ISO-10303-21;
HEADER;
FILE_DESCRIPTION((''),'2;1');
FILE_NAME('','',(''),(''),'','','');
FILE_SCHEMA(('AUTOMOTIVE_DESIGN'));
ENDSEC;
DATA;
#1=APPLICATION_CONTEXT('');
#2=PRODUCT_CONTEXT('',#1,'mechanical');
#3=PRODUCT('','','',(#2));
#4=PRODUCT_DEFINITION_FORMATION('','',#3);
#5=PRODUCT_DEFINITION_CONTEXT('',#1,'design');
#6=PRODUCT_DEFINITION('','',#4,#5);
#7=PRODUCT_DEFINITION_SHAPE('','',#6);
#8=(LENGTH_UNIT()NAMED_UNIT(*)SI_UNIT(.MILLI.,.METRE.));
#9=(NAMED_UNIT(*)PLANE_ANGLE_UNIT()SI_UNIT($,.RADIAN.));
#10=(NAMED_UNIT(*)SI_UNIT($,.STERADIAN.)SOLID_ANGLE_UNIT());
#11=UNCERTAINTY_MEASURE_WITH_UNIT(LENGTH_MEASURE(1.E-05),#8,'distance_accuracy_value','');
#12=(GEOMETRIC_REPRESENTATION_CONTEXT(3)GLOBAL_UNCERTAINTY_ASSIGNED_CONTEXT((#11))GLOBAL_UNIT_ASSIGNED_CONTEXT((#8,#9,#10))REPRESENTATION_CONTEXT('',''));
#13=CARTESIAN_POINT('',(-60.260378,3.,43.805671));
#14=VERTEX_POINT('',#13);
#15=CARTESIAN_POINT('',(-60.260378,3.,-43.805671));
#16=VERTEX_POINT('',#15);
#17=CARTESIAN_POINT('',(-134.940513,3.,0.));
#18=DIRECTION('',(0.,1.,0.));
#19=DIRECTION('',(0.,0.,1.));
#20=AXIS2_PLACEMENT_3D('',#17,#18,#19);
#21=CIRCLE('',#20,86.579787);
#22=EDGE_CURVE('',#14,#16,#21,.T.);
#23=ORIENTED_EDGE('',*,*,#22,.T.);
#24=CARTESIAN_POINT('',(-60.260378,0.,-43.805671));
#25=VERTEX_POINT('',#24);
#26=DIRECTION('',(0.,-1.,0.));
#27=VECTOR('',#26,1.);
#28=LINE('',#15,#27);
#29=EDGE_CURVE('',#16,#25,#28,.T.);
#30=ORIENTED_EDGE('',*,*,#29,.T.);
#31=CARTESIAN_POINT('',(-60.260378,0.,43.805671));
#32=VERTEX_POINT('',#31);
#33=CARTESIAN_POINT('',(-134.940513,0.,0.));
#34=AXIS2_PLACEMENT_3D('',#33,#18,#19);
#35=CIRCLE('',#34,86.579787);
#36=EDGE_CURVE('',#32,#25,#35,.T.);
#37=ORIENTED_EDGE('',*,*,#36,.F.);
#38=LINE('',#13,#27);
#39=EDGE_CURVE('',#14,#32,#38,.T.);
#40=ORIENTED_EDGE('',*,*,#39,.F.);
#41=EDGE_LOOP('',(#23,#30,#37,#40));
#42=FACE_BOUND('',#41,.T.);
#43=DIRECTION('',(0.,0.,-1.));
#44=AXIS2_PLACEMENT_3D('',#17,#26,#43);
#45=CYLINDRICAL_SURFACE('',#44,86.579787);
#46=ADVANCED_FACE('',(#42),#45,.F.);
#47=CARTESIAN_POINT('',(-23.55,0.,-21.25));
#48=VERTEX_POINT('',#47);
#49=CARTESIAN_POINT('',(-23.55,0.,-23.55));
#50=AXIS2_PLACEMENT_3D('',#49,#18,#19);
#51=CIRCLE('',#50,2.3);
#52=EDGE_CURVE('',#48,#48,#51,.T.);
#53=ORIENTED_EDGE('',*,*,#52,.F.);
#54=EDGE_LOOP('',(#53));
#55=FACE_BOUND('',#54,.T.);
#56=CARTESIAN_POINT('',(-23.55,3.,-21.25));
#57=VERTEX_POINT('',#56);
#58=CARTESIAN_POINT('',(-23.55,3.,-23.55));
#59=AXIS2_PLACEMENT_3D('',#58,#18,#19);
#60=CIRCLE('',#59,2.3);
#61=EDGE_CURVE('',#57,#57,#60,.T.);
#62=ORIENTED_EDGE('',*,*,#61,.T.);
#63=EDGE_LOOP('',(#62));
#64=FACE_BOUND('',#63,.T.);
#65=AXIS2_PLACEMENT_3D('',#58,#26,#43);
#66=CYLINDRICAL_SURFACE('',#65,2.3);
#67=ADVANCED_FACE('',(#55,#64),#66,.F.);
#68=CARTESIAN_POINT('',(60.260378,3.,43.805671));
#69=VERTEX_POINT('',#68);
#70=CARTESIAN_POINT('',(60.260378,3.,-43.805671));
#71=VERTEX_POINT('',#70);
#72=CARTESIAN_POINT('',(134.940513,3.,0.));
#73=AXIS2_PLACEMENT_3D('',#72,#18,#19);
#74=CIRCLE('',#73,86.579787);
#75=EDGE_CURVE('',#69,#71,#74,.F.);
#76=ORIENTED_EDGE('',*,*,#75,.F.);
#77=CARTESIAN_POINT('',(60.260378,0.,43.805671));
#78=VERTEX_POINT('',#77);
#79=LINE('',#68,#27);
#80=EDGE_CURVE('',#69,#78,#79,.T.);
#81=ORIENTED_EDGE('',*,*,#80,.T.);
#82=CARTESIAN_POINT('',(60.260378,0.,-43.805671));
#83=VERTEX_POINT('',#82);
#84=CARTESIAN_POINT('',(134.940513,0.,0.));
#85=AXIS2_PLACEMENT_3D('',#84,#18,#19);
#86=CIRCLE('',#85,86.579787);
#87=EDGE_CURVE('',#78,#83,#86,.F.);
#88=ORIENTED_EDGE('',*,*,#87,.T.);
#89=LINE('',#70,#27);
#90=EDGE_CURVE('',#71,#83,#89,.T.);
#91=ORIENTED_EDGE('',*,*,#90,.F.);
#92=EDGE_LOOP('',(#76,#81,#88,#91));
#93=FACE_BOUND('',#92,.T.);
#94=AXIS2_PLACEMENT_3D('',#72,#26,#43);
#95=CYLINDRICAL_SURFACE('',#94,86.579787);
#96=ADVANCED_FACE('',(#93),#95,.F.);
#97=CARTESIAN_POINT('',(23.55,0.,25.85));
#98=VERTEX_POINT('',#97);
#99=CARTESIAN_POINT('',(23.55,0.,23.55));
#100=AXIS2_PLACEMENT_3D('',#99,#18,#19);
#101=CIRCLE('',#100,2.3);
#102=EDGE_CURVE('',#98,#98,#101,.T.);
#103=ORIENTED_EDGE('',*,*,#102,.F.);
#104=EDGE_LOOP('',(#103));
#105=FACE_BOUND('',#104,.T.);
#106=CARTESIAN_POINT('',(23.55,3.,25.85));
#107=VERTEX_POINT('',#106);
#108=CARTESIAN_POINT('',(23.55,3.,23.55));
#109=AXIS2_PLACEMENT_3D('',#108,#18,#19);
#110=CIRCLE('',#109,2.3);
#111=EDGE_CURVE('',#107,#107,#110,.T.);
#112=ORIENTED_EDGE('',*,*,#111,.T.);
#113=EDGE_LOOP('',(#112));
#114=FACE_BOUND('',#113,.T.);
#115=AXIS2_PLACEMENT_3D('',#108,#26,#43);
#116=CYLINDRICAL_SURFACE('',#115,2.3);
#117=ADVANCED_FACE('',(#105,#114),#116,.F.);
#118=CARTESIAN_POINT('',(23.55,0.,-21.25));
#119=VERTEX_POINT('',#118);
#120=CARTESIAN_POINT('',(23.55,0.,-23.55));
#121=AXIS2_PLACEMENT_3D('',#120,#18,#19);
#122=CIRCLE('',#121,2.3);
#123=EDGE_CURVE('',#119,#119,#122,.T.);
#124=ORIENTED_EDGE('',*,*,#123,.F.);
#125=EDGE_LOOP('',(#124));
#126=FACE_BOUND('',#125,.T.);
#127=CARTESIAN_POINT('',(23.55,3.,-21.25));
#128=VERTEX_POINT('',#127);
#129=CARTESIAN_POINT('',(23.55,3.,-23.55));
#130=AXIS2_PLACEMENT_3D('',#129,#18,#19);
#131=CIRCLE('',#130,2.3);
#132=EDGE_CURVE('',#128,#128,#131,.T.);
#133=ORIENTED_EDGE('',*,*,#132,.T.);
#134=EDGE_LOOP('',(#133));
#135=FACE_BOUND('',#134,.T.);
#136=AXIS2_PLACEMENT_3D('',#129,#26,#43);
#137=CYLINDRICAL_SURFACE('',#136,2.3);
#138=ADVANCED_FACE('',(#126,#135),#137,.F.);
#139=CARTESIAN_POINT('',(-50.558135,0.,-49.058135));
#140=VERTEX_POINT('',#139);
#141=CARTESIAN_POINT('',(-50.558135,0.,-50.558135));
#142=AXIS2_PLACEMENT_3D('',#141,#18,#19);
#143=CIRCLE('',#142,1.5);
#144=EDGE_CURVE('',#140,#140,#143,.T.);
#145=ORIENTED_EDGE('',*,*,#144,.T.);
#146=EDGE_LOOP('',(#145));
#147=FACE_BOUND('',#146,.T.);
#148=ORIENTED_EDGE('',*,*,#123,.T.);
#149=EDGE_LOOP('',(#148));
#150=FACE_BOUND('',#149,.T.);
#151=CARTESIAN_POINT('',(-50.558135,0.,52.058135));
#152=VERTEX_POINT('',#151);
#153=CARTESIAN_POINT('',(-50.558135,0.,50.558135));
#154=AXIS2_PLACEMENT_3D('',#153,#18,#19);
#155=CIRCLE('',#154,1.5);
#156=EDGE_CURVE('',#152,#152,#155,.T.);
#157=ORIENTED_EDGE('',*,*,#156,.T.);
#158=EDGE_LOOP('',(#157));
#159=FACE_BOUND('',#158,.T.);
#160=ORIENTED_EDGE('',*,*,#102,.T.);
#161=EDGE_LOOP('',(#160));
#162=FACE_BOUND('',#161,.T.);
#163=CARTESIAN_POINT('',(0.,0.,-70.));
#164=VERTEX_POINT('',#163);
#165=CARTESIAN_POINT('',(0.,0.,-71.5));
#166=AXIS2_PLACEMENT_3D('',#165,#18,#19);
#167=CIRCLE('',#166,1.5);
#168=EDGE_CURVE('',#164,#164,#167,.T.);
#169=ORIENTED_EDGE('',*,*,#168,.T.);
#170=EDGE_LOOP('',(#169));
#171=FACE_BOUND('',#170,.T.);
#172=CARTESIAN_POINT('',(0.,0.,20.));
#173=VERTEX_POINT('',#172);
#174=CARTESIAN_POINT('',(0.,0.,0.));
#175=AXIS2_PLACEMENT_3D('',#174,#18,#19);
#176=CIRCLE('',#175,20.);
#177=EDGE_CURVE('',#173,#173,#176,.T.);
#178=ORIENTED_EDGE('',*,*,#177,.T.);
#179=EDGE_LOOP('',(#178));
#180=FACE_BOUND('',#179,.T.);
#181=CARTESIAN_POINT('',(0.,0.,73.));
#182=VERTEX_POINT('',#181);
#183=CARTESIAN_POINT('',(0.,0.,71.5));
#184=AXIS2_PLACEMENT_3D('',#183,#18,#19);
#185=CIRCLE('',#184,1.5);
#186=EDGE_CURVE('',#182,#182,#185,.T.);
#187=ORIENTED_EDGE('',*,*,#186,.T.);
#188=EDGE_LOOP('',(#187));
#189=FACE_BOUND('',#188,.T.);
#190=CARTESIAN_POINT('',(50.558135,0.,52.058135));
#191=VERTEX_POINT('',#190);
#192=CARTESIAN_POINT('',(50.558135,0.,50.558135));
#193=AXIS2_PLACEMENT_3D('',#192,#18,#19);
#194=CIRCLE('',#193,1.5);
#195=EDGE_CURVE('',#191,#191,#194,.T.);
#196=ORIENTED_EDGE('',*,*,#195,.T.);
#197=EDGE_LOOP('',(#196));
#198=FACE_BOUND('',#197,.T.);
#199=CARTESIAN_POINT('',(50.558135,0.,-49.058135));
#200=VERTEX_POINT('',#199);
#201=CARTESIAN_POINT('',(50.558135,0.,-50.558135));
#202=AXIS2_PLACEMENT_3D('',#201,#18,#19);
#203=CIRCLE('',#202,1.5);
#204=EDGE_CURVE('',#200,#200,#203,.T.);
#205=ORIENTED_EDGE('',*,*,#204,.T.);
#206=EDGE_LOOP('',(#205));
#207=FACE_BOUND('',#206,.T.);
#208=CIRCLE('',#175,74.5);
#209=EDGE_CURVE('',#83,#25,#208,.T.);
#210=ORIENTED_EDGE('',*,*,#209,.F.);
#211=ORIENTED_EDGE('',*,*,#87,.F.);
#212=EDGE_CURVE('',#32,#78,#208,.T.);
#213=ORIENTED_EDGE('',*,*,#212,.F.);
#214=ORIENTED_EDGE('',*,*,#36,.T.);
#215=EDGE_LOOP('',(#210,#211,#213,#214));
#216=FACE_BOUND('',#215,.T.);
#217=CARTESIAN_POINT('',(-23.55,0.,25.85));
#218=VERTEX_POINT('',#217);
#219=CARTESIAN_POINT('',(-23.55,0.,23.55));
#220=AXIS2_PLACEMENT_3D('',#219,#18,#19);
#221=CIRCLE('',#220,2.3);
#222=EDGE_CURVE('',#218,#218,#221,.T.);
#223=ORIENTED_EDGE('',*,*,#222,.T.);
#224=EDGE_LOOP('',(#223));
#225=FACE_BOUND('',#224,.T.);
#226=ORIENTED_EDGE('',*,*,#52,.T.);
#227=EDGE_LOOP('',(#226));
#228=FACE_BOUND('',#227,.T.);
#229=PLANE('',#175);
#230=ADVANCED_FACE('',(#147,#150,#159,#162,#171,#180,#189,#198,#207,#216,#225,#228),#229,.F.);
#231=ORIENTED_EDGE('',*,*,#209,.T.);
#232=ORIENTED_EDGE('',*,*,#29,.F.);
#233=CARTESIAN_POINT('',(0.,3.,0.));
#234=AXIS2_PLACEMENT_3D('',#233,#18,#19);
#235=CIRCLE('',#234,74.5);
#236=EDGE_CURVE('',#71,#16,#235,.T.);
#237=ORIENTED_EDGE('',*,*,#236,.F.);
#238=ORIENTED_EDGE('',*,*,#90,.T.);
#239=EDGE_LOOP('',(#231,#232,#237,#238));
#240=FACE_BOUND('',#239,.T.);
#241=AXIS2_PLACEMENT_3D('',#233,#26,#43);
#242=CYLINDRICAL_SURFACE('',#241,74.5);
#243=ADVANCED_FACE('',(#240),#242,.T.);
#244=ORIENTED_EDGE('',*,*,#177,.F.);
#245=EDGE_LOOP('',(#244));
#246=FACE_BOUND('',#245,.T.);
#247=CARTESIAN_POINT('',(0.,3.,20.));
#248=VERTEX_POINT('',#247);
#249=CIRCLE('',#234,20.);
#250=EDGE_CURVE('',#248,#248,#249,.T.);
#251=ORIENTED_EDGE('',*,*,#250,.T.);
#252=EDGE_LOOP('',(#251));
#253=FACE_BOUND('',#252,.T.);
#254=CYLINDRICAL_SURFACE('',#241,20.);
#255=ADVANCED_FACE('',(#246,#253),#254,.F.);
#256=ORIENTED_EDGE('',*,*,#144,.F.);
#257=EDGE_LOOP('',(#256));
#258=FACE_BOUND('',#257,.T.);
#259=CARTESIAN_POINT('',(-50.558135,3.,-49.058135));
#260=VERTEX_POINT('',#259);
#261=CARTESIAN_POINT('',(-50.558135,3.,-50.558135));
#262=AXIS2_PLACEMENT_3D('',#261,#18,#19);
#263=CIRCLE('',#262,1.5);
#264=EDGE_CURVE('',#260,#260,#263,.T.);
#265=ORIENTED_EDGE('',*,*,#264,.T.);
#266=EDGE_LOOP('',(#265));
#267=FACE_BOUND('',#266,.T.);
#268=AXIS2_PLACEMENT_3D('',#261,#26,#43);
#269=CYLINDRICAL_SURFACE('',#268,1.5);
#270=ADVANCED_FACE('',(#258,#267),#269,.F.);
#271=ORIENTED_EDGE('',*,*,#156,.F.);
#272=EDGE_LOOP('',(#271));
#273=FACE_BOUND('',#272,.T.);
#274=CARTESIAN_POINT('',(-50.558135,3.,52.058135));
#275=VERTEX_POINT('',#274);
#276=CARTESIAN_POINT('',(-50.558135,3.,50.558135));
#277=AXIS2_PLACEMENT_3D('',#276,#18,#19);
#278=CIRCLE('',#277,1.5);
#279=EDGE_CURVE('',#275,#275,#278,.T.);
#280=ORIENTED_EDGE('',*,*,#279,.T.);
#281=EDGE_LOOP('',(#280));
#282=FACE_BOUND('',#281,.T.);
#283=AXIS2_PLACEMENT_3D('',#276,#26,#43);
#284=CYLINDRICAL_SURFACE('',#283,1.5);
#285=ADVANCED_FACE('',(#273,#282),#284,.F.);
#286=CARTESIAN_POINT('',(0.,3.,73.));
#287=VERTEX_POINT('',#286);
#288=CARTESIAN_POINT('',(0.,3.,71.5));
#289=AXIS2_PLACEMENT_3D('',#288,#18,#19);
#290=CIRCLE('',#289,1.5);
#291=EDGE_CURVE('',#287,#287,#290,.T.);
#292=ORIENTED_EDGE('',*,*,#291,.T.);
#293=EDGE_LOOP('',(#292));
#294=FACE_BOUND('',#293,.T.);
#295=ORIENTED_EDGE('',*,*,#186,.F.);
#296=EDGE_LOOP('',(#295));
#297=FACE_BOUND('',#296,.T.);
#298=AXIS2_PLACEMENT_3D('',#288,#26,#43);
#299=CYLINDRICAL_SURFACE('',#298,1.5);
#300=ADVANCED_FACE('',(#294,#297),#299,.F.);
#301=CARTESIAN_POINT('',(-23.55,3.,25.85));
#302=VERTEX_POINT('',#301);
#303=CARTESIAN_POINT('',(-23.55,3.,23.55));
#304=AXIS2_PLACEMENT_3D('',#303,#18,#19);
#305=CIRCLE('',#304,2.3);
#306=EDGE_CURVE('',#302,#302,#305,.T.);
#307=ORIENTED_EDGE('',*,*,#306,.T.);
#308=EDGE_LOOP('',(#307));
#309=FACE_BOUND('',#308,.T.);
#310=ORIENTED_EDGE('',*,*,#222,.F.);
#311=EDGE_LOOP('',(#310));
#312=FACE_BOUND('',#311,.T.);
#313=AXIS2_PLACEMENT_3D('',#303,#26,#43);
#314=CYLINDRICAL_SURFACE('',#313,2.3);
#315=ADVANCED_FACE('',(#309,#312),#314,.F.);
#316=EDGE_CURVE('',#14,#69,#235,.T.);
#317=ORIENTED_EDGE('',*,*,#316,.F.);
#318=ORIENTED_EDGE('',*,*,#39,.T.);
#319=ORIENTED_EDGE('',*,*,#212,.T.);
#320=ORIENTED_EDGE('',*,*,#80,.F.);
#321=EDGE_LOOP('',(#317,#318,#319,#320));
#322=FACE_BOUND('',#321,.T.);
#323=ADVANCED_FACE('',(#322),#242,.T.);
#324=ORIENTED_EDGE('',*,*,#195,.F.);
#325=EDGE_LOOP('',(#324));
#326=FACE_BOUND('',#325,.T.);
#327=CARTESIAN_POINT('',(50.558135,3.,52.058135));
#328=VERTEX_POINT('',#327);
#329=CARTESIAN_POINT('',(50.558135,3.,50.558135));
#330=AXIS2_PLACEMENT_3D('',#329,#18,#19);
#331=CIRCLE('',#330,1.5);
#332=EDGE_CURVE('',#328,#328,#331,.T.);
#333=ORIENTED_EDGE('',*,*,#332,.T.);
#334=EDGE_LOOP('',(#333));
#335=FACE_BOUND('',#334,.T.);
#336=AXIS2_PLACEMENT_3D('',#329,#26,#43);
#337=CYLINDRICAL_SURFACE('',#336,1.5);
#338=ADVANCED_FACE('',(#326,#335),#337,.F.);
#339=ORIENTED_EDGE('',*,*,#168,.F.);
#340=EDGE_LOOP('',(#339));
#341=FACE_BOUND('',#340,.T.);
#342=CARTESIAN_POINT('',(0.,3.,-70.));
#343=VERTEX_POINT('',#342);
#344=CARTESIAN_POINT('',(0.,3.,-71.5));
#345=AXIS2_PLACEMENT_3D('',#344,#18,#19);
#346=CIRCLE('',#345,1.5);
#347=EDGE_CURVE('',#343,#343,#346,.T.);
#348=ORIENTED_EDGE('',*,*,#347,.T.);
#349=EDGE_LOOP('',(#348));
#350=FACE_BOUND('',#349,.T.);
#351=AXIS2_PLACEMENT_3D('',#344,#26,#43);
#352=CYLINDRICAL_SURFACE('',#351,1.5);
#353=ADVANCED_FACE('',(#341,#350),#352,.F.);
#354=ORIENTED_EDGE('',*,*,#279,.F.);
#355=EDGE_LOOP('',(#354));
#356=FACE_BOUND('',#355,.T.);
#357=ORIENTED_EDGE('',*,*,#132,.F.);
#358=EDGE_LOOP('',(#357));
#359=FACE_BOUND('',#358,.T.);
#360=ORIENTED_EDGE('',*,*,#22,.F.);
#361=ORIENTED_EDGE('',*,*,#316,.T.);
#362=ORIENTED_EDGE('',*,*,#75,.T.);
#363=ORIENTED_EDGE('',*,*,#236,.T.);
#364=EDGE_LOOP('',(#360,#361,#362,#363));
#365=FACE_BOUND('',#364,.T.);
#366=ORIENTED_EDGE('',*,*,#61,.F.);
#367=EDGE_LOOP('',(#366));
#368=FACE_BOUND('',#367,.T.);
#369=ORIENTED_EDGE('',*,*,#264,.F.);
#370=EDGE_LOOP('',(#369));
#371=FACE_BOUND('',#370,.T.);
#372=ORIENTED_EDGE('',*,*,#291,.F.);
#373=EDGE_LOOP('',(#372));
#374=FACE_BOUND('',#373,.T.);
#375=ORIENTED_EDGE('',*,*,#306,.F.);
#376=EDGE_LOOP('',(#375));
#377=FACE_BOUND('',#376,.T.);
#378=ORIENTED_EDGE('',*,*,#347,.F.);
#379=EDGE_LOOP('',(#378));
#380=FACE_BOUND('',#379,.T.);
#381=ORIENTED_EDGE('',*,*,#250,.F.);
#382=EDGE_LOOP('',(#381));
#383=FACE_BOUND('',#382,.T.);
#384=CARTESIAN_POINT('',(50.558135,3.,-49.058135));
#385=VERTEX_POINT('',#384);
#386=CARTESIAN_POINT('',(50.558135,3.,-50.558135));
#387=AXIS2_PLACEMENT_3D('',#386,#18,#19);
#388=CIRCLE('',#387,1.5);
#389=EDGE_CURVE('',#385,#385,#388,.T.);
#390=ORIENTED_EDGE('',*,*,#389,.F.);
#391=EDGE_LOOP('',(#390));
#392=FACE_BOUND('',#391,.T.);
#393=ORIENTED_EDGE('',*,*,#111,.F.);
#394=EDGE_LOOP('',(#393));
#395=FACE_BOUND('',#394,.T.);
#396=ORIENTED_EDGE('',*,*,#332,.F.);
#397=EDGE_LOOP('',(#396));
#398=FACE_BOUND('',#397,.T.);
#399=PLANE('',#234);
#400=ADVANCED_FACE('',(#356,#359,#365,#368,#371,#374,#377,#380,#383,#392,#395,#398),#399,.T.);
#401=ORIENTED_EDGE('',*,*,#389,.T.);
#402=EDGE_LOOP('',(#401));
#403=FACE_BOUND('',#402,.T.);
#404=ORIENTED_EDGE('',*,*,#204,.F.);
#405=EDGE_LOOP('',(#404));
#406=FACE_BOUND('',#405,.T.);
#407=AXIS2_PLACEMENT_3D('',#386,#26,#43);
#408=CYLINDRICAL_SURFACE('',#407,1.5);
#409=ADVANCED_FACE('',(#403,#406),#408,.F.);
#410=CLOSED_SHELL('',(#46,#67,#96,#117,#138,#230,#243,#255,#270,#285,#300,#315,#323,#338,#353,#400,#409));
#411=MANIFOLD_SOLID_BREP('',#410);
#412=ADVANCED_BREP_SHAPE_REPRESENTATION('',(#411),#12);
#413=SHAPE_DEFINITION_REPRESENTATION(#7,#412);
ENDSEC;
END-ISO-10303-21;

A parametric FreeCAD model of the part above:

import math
import FreeCAD as App
import Part
import Sketcher
from FreeCAD import Vector
Q = App.Units.Quantity

doc = App.newDocument("Part")
body = doc.addObject("PartDesign::Body", "Body")

sketch1 = doc.addObject("Sketcher::SketchObject", "Sketch")
body.addObject(sketch1)
sketch1.AttachmentSupport = (doc.XZ_Plane, [""])
sketch1.MapMode = "FlatFace"
sketch1.addGeometry(Part.ArcOfCircle(Part.Circle(Vector(0, 0, 0), Vector(0, 0, 1), 74.5), math.radians(-144), math.radians(-36)), False)
sketch1.addGeometry(Part.ArcOfCircle(Part.Circle(Vector(-134.9, 0, 0), Vector(0, 0, 1), 86.6), math.radians(-30), math.radians(30)), False)
sketch1.addGeometry(Part.ArcOfCircle(Part.Circle(Vector(0, 0, 0), Vector(0, 0, 1), 74.5), math.radians(36), math.radians(144)), False)
sketch1.addGeometry(Part.ArcOfCircle(Part.Circle(Vector(134.9, 0, 0), Vector(0, 0, 1), 86.6), math.radians(150), math.radians(210)), False)
sketch1.addGeometry(Part.Circle(Vector(-50.6, 50.6, 0), Vector(0, 0, 1), 1.5), False)
sketch1.addGeometry(Part.Circle(Vector(0, 71.5, 0), Vector(0, 0, 1), 1.5), False)
sketch1.addGeometry(Part.Circle(Vector(-23.6, 23.6, 0), Vector(0, 0, 1), 2.3), False)
sketch1.addGeometry(Part.Circle(Vector(50.6, 50.6, 0), Vector(0, 0, 1), 1.5), False)
sketch1.addGeometry(Part.Circle(Vector(23.6, 23.6, 0), Vector(0, 0, 1), 2.3), False)
sketch1.addGeometry(Part.Circle(Vector(0, 0, 0), Vector(0, 0, 1), 20), False)
sketch1.addGeometry(Part.Circle(Vector(-23.6, -23.6, 0), Vector(0, 0, 1), 2.3), False)
sketch1.addGeometry(Part.Circle(Vector(-50.6, -50.6, 0), Vector(0, 0, 1), 1.5), False)
sketch1.addGeometry(Part.Circle(Vector(0, -71.5, 0), Vector(0, 0, 1), 1.5), False)
sketch1.addGeometry(Part.Circle(Vector(23.6, -23.6, 0), Vector(0, 0, 1), 2.3), False)
sketch1.addGeometry(Part.Circle(Vector(50.6, -50.6, 0), Vector(0, 0, 1), 1.5), False)
sketch1.addConstraint(Sketcher.Constraint("Coincident", 0, 1, 1, 1))
sketch1.addConstraint(Sketcher.Constraint("Coincident", 1, 2, 2, 2))
sketch1.addConstraint(Sketcher.Constraint("Coincident", 2, 1, 3, 1))
sketch1.addConstraint(Sketcher.Constraint("Coincident", 3, 2, 0, 2))
sketch1.addConstraint(Sketcher.Constraint("Coincident", 0, 3, -1, 1))
sketch1.addConstraint(Sketcher.Constraint("Coincident", 2, 3, -1, 1))
sketch1.addConstraint(Sketcher.Constraint("Coincident", 9, 3, -1, 1))
sketch1.addConstraint(Sketcher.Constraint("Equal", 0, 2))
sketch1.addConstraint(Sketcher.Constraint("Equal", 1, 3))
sketch1.addConstraint(Sketcher.Constraint("Equal", 4, 5))
sketch1.addConstraint(Sketcher.Constraint("Equal", 5, 7))
sketch1.addConstraint(Sketcher.Constraint("Equal", 6, 8))
sketch1.addConstraint(Sketcher.Constraint("Equal", 8, 10))
sketch1.addConstraint(Sketcher.Constraint("Equal", 7, 11))
sketch1.addConstraint(Sketcher.Constraint("Equal", 11, 12))
sketch1.addConstraint(Sketcher.Constraint("Equal", 10, 13))
sketch1.addConstraint(Sketcher.Constraint("Equal", 12, 14))
sketch1.addConstraint(Sketcher.Constraint("Symmetric", 1, 3, 3, 3, -1, 1))
sketch1.addConstraint(Sketcher.Constraint("Symmetric", 8, 3, 10, 3, -1, 1))
sketch1.addConstraint(Sketcher.Constraint("Symmetric", 7, 3, 11, 3, -1, 1))
sketch1.addConstraint(Sketcher.Constraint("Symmetric", 5, 3, 12, 3, -1, 1))
sketch1.addConstraint(Sketcher.Constraint("Symmetric", 6, 3, 13, 3, -1, 1))
sketch1.addConstraint(Sketcher.Constraint("Symmetric", 4, 3, 14, 3, -1, 1))
sketch1.addConstraint(Sketcher.Constraint("Symmetric", 4, 3, 7, 3, -2))
sketch1.addConstraint(Sketcher.Constraint("Symmetric", 6, 3, 8, 3, -2))
sketch1.addConstraint(Sketcher.Constraint("PointOnObject", 1, 3, -1))
sketch1.addConstraint(Sketcher.Constraint("PointOnObject", 5, 3, -2))
sketch1.addConstraint(Sketcher.Constraint("Diameter", 4, Q("3 mm")))
sketch1.addConstraint(Sketcher.Constraint("Diameter", 9, Q("40 mm")))
sketch1.addConstraint(Sketcher.Constraint("Diameter", 6, Q("4.6 mm")))
sketch1.addConstraint(Sketcher.Constraint("Radius", 0, Q("74.5 mm")))
sketch1.addConstraint(Sketcher.Constraint("DistanceY", -1, 1, 5, 3, Q("71.5 mm")))
sketch1.addConstraint(Sketcher.Constraint("DistanceX", 6, 3, 8, 3, Q("47.1 mm")))
sketch1.addConstraint(Sketcher.Constraint("DistanceY", 10, 3, 6, 3, Q("47.1 mm")))
sketch1.addConstraint(Sketcher.Constraint("Radius", 1, Q("86.579787 mm")))
sketch1.addConstraint(Sketcher.Constraint("DistanceX", 0, 1, -1, 1, Q("60.260378 mm")))
sketch1.addConstraint(Sketcher.Constraint("DistanceX", 1, 3, 4, 3, Q("84.382379 mm")))
sketch1.addConstraint(Sketcher.Constraint("DistanceY", -1, 1, 4, 3, Q("50.558135 mm")))
pad1 = doc.addObject("PartDesign::Pad", "Pad")
body.addObject(pad1)
pad1.Profile = sketch1
pad1.Length = 3
pad1.Reversed = True

doc.recompute()
